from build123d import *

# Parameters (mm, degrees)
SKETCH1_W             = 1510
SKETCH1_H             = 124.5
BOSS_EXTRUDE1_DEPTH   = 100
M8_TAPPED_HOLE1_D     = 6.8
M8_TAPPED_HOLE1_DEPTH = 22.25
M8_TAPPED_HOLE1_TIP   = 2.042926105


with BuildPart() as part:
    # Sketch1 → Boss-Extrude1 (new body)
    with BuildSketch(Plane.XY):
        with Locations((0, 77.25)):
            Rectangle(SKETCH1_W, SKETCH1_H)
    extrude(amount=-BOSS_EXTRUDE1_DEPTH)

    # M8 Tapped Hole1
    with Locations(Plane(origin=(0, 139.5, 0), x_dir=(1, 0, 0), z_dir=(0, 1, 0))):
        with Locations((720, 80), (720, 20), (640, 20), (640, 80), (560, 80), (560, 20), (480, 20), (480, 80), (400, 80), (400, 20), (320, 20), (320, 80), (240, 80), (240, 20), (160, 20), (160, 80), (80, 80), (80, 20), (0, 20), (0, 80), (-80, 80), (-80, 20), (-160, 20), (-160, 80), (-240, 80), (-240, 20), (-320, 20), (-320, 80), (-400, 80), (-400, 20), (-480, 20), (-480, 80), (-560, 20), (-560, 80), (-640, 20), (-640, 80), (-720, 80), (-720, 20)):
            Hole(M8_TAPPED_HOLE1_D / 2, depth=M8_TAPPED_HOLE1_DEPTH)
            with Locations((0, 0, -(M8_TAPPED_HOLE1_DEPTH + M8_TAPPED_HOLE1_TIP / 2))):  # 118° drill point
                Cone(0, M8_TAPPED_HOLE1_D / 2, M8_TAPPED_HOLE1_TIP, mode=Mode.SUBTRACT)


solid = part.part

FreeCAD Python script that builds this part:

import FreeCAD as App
import Part
import Sketcher
Q = App.Units.Quantity

doc = App.newDocument("Part")
body = doc.addObject("PartDesign::Body", "Body")

# Sketch on XY plane
sketch1 = doc.addObject("Sketcher::SketchObject", "Sketch")
body.addObject(sketch1)
sketch1.AttachmentSupport = (doc.XY_Plane, [""])
sketch1.MapMode = "FlatFace"
sketch1.addGeometry(Part.LineSegment(App.Vector(-755, 140, 0), App.Vector(-755, 15, 0)), False)
sketch1.addGeometry(Part.LineSegment(App.Vector(-755, 15, 0), App.Vector(755, 15, 0)), False)
sketch1.addGeometry(Part.LineSegment(App.Vector(755, 15, 0), App.Vector(755, 140, 0)), False)
sketch1.addGeometry(Part.LineSegment(App.Vector(755, 140, 0), App.Vector(-755, 140, 0)), False)
sketch1.addConstraint(Sketcher.Constraint("Coincident", 0, 2, 1, 1))
sketch1.addConstraint(Sketcher.Constraint("Coincident", 1, 2, 2, 1))
sketch1.addConstraint(Sketcher.Constraint("Coincident", 2, 2, 3, 1))
sketch1.addConstraint(Sketcher.Constraint("Coincident", 3, 2, 0, 1))
sketch1.addConstraint(Sketcher.Constraint("Vertical", 0))
sketch1.addConstraint(Sketcher.Constraint("Horizontal", 1))
sketch1.addConstraint(Sketcher.Constraint("Vertical", 2))
sketch1.addConstraint(Sketcher.Constraint("Horizontal", 3))
sketch1.addConstraint(Sketcher.Constraint("DistanceX", 1, 1, 1, 2, Q("1510 mm")))
sketch1.addConstraint(Sketcher.Constraint("DistanceY", 0, 2, 0, 1, Q("124.5 mm")))
sketch1.addConstraint(Sketcher.Constraint("DistanceX", 0, 2, -1, 1, Q("755 mm")))
sketch1.addConstraint(Sketcher.Constraint("DistanceY", -1, 1, 0, 2, Q("15 mm")))
pad1 = doc.addObject("PartDesign::Pad", "Pad")
body.addObject(pad1)
pad1.Profile = sketch1
pad1.Length = 100
pad1.Reversed = True

# Sketch on XZ plane
sketch2 = doc.addObject("Sketcher::SketchObject", "Sketch001")
body.addObject(sketch2)
sketch2.AttachmentSupport = (doc.XZ_Plane, [""])
sketch2.MapMode = "FlatFace"
sketch2.AttachmentOffset = App.Placement(App.Vector(0, 0, -139.5), App.Rotation())
sketch2.addGeometry(Part.Circle(App.Vector(720, -80, 0), App.Vector(0, 0, 1), 3.4), False)
sketch2.addGeometry(Part.Circle(App.Vector(720, -20, 0), App.Vector(0, 0, 1), 3.4), False)
sketch2.addGeometry(Part.Circle(App.Vector(640, -20, 0), App.Vector(0, 0, 1), 3.4), False)
sketch2.addGeometry(Part.Circle(App.Vector(640, -80, 0), App.Vector(0, 0, 1), 3.4), False)
sketch2.addGeometry(Part.Circle(App.Vector(560, -80, 0), App.Vector(0, 0, 1), 3.4), False)
sketch2.addGeometry(Part.Circle(App.Vector(560, -20, 0), App.Vector(0, 0, 1), 3.4), False)
sketch2.addGeometry(Part.Circle(App.Vector(480, -20, 0), App.Vector(0, 0, 1), 3.4), False)
sketch2.addGeometry(Part.Circle(App.Vector(480, -80, 0), App.Vector(0, 0, 1), 3.4), False)
sketch2.addGeometry(Part.Circle(App.Vector(400, -80, 0), App.Vector(0, 0, 1), 3.4), False)
sketch2.addGeometry(Part.Circle(App.Vector(400, -20, 0), App.Vector(0, 0, 1), 3.4), False)
sketch2.addGeometry(Part.Circle(App.Vector(320, -20, 0), App.Vector(0, 0, 1), 3.4), False)
sketch2.addGeometry(Part.Circle(App.Vector(320, -80, 0), App.Vector(0, 0, 1), 3.4), False)
sketch2.addGeometry(Part.Circle(App.Vector(240, -80, 0), App.Vector(0, 0, 1), 3.4), False)
sketch2.addGeometry(Part.Circle(App.Vector(240, -20, 0), App.Vector(0, 0, 1), 3.4), False)
sketch2.addGeometry(Part.Circle(App.Vector(160, -20, 0), App.Vector(0, 0, 1), 3.4), False)
sketch2.addGeometry(Part.Circle(App.Vector(160, -80, 0), App.Vector(0, 0, 1), 3.4), False)
sketch2.addGeometry(Part.Circle(App.Vector(80, -80, 0), App.Vector(0, 0, 1), 3.4), False)
sketch2.addGeometry(Part.Circle(App.Vector(80, -20, 0), App.Vector(0, 0, 1), 3.4), False)
sketch2.addGeometry(Part.Circle(App.Vector(0, -20, 0), App.Vector(0, 0, 1), 3.4), False)
sketch2.addGeometry(Part.Circle(App.Vector(0, -80, 0), App.Vector(0, 0, 1), 3.4), False)
sketch2.addGeometry(Part.Circle(App.Vector(-80, -80, 0), App.Vector(0, 0, 1), 3.4), False)
sketch2.addGeometry(Part.Circle(App.Vector(-80, -20, 0), App.Vector(0, 0, 1), 3.4), False)
sketch2.addGeometry(Part.Circle(App.Vector(-160, -20, 0), App.Vector(0, 0, 1), 3.4), False)
sketch2.addGeometry(Part.Circle(App.Vector(-160, -80, 0), App.Vector(0, 0, 1), 3.4), False)
sketch2.addGeometry(Part.Circle(App.Vector(-240, -80, 0), App.Vector(0, 0, 1), 3.4), False)
sketch2.addGeometry(Part.Circle(App.Vector(-240, -20, 0), App.Vector(0, 0, 1), 3.4), False)
sketch2.addGeometry(Part.Circle(App.Vector(-320, -20, 0), App.Vector(0, 0, 1), 3.4), False)
sketch2.addGeometry(Part.Circle(App.Vector(-320, -80, 0), App.Vector(0, 0, 1), 3.4), False)
sketch2.addGeometry(Part.Circle(App.Vector(-400, -80, 0), App.Vector(0, 0, 1), 3.4), False)
sketch2.addGeometry(Part.Circle(App.Vector(-400, -20, 0), App.Vector(0, 0, 1), 3.4), False)
sketch2.addGeometry(Part.Circle(App.Vector(-480, -20, 0), App.Vector(0, 0, 1), 3.4), False)
sketch2.addGeometry(Part.Circle(App.Vector(-480, -80, 0), App.Vector(0, 0, 1), 3.4), False)
sketch2.addGeometry(Part.Circle(App.Vector(-560, -20, 0), App.Vector(0, 0, 1), 3.4), False)
sketch2.addGeometry(Part.Circle(App.Vector(-560, -80, 0), App.Vector(0, 0, 1), 3.4), False)
sketch2.addGeometry(Part.Circle(App.Vector(-640, -20, 0), App.Vector(0, 0, 1), 3.4), False)
sketch2.addGeometry(Part.Circle(App.Vector(-640, -80, 0), App.Vector(0, 0, 1), 3.4), False)
sketch2.addGeometry(Part.Circle(App.Vector(-720, -80, 0), App.Vector(0, 0, 1), 3.4), False)
sketch2.addGeometry(Part.Circle(App.Vector(-720, -20, 0), App.Vector(0, 0, 1), 3.4), False)
sketch2.addConstraint(Sketcher.Constraint("Equal", 0, 1))
sketch2.addConstraint(Sketcher.Constraint("Equal", 1, 2))
sketch2.addConstraint(Sketcher.Constraint("Equal", 2, 3))
sketch2.addConstraint(Sketcher.Constraint("Equal", 3, 4))
sketch2.addConstraint(Sketcher.Constraint("Equal", 4, 5))
sketch2.addConstraint(Sketcher.Constraint("Equal", 5, 6))
sketch2.addConstraint(Sketcher.Constraint("Equal", 6, 7))
sketch2.addConstraint(Sketcher.Constraint("Equal", 7, 8))
sketch2.addConstraint(Sketcher.Constraint("Equal", 8, 9))
sketch2.addConstraint(Sketcher.Constraint("Equal", 9, 10))
sketch2.addConstraint(Sketcher.Constraint("Equal", 10, 11))
sketch2.addConstraint(Sketcher.Constraint("Equal", 11, 12))
sketch2.addConstraint(Sketcher.Constraint("Equal", 12, 13))
sketch2.addConstraint(Sketcher.Constraint("Equal", 13, 14))
sketch2.addConstraint(Sketcher.Constraint("Equal", 14, 15))
sketch2.addConstraint(Sketcher.Constraint("Equal", 15, 16))
sketch2.addConstraint(Sketcher.Constraint("Equal", 16, 17))
sketch2.addConstraint(Sketcher.Constraint("Equal", 17, 18))
sketch2.addConstraint(Sketcher.Constraint("Equal", 18, 19))
sketch2.addConstraint(Sketcher.Constraint("Equal", 19, 20))
sketch2.addConstraint(Sketcher.Constraint("Equal", 20, 21))
sketch2.addConstraint(Sketcher.Constraint("Equal", 21, 22))
sketch2.addConstraint(Sketcher.Constraint("Equal", 22, 23))
sketch2.addConstraint(Sketcher.Constraint("Equal", 23, 24))
sketch2.addConstraint(Sketcher.Constraint("Equal", 24, 25))
sketch2.addConstraint(Sketcher.Constraint("Equal", 25, 26))
sketch2.addConstraint(Sketcher.Constraint("Equal", 26, 27))
sketch2.addConstraint(Sketcher.Constraint("Equal", 27, 28))
sketch2.addConstraint(Sketcher.Constraint("Equal", 28, 29))
sketch2.addConstraint(Sketcher.Constraint("Equal", 29, 30))
sketch2.addConstraint(Sketcher.Constraint("Equal", 30, 31))
sketch2.addConstraint(Sketcher.Constraint("Equal", 31, 32))
sketch2.addConstraint(Sketcher.Constraint("Equal", 32, 33))
sketch2.addConstraint(Sketcher.Constraint("Equal", 33, 34))
sketch2.addConstraint(Sketcher.Constraint("Equal", 34, 35))
sketch2.addConstraint(Sketcher.Constraint("Equal", 35, 36))
sketch2.addConstraint(Sketcher.Constraint("Equal", 36, 37))
sketch2.addConstraint(Sketcher.Constraint("Symmetric", 16, 3, 20, 3, -2))
sketch2.addConstraint(Sketcher.Constraint("Symmetric", 17, 3, 21, 3, -2))
sketch2.addConstraint(Sketcher.Constraint("Symmetric", 14, 3, 22, 3, -2))
sketch2.addConstraint(Sketcher.Constraint("Symmetric", 15, 3, 23, 3, -2))
sketch2.addConstraint(Sketcher.Constraint("Symmetric", 12, 3, 24, 3, -2))
sketch2.addConstraint(Sketcher.Constraint("Symmetric", 13, 3, 25, 3, -2))
sketch2.addConstraint(Sketcher.Constraint("Symmetric", 10, 3, 26, 3, -2))
sketch2.addConstraint(Sketcher.Constraint("Symmetric", 11, 3, 27, 3, -2))
sketch2.addConstraint(Sketcher.Constraint("Symmetric", 8, 3, 28, 3, -2))
sketch2.addConstraint(Sketcher.Constraint("Symmetric", 9, 3, 29, 3, -2))
sketch2.addConstraint(Sketcher.Constraint("Symmetric", 6, 3, 30, 3, -2))
sketch2.addConstraint(Sketcher.Constraint("Symmetric", 7, 3, 31, 3, -2))
sketch2.addConstraint(Sketcher.Constraint("Symmetric", 5, 3, 32, 3, -2))
sketch2.addConstraint(Sketcher.Constraint("Symmetric", 4, 3, 33, 3, -2))
sketch2.addConstraint(Sketcher.Constraint("Symmetric", 2, 3, 34, 3, -2))
sketch2.addConstraint(Sketcher.Constraint("Symmetric", 3, 3, 35, 3, -2))
sketch2.addConstraint(Sketcher.Constraint("Symmetric", 0, 3, 36, 3, -2))
sketch2.addConstraint(Sketcher.Constraint("Symmetric", 1, 3, 37, 3, -2))
sketch2.addConstraint(Sketcher.Constraint("PointOnObject", 18, 3, -2))
sketch2.addConstraint(Sketcher.Constraint("PointOnObject", 19, 3, -2))
sketch2.addConstraint(Sketcher.Constraint("Horizontal", 1, 3, 2, 3))
sketch2.addConstraint(Sketcher.Constraint("Horizontal", 0, 3, 3, 3))
sketch2.addConstraint(Sketcher.Constraint("Horizontal", 3, 3, 4, 3))
sketch2.addConstraint(Sketcher.Constraint("Horizontal", 2, 3, 5, 3))
sketch2.addConstraint(Sketcher.Constraint("Horizontal", 5, 3, 6, 3))
sketch2.addConstraint(Sketcher.Constraint("Horizontal", 4, 3, 7, 3))
sketch2.addConstraint(Sketcher.Constraint("Horizontal", 7, 3, 8, 3))
sketch2.addConstraint(Sketcher.Constraint("Horizontal", 6, 3, 9, 3))
sketch2.addConstraint(Sketcher.Constraint("Horizontal", 9, 3, 10, 3))
sketch2.addConstraint(Sketcher.Constraint("Horizontal", 8, 3, 11, 3))
sketch2.addConstraint(Sketcher.Constraint("Horizontal", 11, 3, 12, 3))
sketch2.addConstraint(Sketcher.Constraint("Horizontal", 10, 3, 13, 3))
sketch2.addConstraint(Sketcher.Constraint("Horizontal", 13, 3, 14, 3))
sketch2.addConstraint(Sketcher.Constraint("Horizontal", 12, 3, 15, 3))
sketch2.addConstraint(Sketcher.Constraint("Horizontal", 15, 3, 16, 3))
sketch2.addConstraint(Sketcher.Constraint("Horizontal", 14, 3, 17, 3))
sketch2.addConstraint(Sketcher.Constraint("Horizontal", 17, 3, 18, 3))
sketch2.addConstraint(Sketcher.Constraint("Horizontal", 16, 3, 19, 3))
sketch2.addConstraint(Sketcher.Constraint("Vertical", 0, 3, 1, 3))
sketch2.addConstraint(Sketcher.Constraint("Vertical", 2, 3, 3, 3))
sketch2.addConstraint(Sketcher.Constraint("Vertical", 4, 3, 5, 3))
sketch2.addConstraint(Sketcher.Constraint("Vertical", 6, 3, 7, 3))
sketch2.addConstraint(Sketcher.Constraint("Vertical", 8, 3, 9, 3))
sketch2.addConstraint(Sketcher.Constraint("Vertical", 10, 3, 11, 3))
sketch2.addConstraint(Sketcher.Constraint("Vertical", 12, 3, 13, 3))
sketch2.addConstraint(Sketcher.Constraint("Vertical", 14, 3, 15, 3))
sketch2.addConstraint(Sketcher.Constraint("Vertical", 16, 3, 17, 3))
sketch2.addConstraint(Sketcher.Constraint("Diameter", 0, Q("6.8 mm")))
sketch2.addConstraint(Sketcher.Constraint("DistanceX", -1, 1, 0, 3, Q("720 mm")))
sketch2.addConstraint(Sketcher.Constraint("DistanceY", 0, 3, -1, 1, Q("80 mm")))
sketch2.addConstraint(Sketcher.Constraint("DistanceY", 1, 3, -1, 1, Q("20 mm")))
sketch2.addConstraint(Sketcher.Constraint("DistanceX", -1, 1, 2, 3, Q("640 mm")))
sketch2.addConstraint(Sketcher.Constraint("DistanceX", -1, 1, 4, 3, Q("560 mm")))
sketch2.addConstraint(Sketcher.Constraint("DistanceX", -1, 1, 6, 3, Q("480 mm")))
sketch2.addConstraint(Sketcher.Constraint("DistanceX", -1, 1, 8, 3, Q("400 mm")))
sketch2.addConstraint(Sketcher.Constraint("DistanceX", -1, 1, 10, 3, Q("320 mm")))
sketch2.addConstraint(Sketcher.Constraint("DistanceX", -1, 1, 12, 3, Q("240 mm")))
sketch2.addConstraint(Sketcher.Constraint("DistanceX", -1, 1, 14, 3, Q("160 mm")))
sketch2.addConstraint(Sketcher.Constraint("DistanceX", -1, 1, 16, 3, Q("80 mm")))
doc.recompute()
hole = doc.addObject("PartDesign::Hole", "Hole")
body.addObject(hole)
hole.Profile = sketch2
hole.ThreadType = "None"
hole.Diameter = 6.8
hole.DepthType = "Dimension"
hole.Depth = 22.25
hole.DrillPoint = "Angled"
hole.DrillPointAngle = 118
hole.Reversed = True

doc.recompute()
